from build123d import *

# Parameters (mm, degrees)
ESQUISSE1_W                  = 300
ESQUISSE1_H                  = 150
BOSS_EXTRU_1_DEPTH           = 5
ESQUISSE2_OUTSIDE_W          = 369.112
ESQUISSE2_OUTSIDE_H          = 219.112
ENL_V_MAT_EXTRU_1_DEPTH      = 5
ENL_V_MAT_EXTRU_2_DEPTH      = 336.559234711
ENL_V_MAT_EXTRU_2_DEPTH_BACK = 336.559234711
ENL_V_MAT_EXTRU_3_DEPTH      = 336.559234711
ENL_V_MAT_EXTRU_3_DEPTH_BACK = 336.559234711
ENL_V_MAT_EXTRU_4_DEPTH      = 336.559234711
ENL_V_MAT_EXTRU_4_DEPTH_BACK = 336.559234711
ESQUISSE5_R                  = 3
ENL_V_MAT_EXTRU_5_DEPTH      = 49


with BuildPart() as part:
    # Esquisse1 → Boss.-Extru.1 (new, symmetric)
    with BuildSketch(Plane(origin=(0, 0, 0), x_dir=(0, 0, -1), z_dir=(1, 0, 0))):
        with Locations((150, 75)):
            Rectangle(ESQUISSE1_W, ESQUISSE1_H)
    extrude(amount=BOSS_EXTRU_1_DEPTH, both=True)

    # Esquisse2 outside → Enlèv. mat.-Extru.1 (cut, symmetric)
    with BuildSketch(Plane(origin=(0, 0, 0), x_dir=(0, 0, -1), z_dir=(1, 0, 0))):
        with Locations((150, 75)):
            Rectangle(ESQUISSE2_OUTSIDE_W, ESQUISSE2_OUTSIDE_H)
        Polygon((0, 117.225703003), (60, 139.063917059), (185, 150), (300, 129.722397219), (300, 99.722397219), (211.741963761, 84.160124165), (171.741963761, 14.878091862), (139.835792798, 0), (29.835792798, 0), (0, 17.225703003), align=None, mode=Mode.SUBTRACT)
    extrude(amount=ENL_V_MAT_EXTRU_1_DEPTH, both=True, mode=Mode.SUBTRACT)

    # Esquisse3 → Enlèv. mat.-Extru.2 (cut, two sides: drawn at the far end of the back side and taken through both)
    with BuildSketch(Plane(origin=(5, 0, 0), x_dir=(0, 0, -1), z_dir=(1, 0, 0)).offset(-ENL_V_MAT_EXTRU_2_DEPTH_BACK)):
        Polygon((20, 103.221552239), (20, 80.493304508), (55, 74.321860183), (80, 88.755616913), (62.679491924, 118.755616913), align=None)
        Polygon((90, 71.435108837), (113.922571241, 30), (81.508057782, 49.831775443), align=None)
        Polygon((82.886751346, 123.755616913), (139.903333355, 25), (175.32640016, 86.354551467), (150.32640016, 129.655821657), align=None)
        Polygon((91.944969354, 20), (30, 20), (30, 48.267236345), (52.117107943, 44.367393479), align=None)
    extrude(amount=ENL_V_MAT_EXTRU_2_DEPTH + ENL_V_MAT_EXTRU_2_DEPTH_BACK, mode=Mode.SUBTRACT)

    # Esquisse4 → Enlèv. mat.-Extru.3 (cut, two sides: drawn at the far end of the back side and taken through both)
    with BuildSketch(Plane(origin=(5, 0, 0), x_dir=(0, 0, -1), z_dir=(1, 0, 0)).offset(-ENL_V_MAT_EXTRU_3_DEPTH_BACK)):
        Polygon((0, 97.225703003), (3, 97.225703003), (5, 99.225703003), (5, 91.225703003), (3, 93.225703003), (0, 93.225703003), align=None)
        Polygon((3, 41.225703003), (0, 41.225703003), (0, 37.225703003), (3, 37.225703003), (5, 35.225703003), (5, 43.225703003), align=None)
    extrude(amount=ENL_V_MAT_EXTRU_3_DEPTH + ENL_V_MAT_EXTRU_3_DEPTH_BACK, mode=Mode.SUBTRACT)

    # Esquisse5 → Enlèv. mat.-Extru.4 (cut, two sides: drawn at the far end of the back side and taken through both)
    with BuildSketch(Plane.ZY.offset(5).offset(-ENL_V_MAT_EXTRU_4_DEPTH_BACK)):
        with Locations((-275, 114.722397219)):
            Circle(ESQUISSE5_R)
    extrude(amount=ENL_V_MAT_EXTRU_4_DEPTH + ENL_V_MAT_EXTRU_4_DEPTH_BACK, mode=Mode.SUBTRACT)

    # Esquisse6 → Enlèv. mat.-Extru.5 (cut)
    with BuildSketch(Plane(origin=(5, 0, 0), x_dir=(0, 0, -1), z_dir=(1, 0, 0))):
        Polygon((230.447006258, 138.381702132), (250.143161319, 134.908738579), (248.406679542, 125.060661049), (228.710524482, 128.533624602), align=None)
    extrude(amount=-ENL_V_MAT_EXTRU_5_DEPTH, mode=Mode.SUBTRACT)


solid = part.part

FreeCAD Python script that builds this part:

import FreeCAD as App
import Part
import Sketcher

V = App.Vector
Q = App.Units.Quantity

doc = App.newDocument("Part")
body = doc.addObject("PartDesign::Body", "Body")

sketch1 = body.newObject("Sketcher::SketchObject", "Sketch")
sketch1.AttachmentSupport = (doc.getObject("YZ_Plane"), [""])
sketch1.MapMode = "FlatFace"
sketch1.addGeometry(Part.LineSegment(V(150, 0, 0), V(0, 0, 0)), False)
sketch1.addGeometry(Part.LineSegment(V(0, 0, 0), V(0, -300, 0)), False)
sketch1.addGeometry(Part.LineSegment(V(0, -300, 0), V(150, -300, 0)), False)
sketch1.addGeometry(Part.LineSegment(V(150, -300, 0), V(150, 0, 0)), False)
sketch1.addConstraint(Sketcher.Constraint("Coincident", 0, 2, 1, 1))
sketch1.addConstraint(Sketcher.Constraint("Coincident", 1, 2, 2, 1))
sketch1.addConstraint(Sketcher.Constraint("Coincident", 2, 2, 3, 1))
sketch1.addConstraint(Sketcher.Constraint("Coincident", 3, 2, 0, 1))
sketch1.addConstraint(Sketcher.Constraint("Horizontal", 0))
sketch1.addConstraint(Sketcher.Constraint("Vertical", 1))
sketch1.addConstraint(Sketcher.Constraint("Horizontal", 2))
sketch1.addConstraint(Sketcher.Constraint("Vertical", 3))
sketch1.addConstraint(Sketcher.Constraint("Coincident", 0, 2, -1, 1))
sketch1.addConstraint(Sketcher.Constraint("DistanceX", 0, 2, 0, 1, 150.0))
sketch1.addConstraint(Sketcher.Constraint("DistanceY", 1, 2, 1, 1, 300.0))
pad1 = body.newObject("PartDesign::Pad", "Pad")
pad1.Profile = sketch1
pad1.Length = 10
pad1.Midplane = True

sketch2 = body.newObject("Sketcher::SketchObject", "Sketch001")
sketch2.AttachmentSupport = (doc.getObject("YZ_Plane"), [""])
sketch2.MapMode = "FlatFace"
sketch2.addGeometry(Part.LineSegment(V(185, 35, 0), V(-35, 35, 0)), False)
sketch2.addGeometry(Part.LineSegment(V(-35, 35, 0), V(-35, -335, 0)), False)
sketch2.addGeometry(Part.LineSegment(V(-35, -335, 0), V(185, -335, 0)), False)
sketch2.addGeometry(Part.LineSegment(V(185, -335, 0), V(185, 35, 0)), False)
sketch2.addGeometry(Part.LineSegment(V(17, 0, 0), V(117, 0, 0)), False)
sketch2.addGeometry(Part.LineSegment(V(117, 0, 0), V(139, -60, 0)), False)
sketch2.addGeometry(Part.LineSegment(V(139, -60, 0), V(150, -185, 0)), False)
sketch2.addGeometry(Part.LineSegment(V(150, -185, 0), V(130, -300, 0)), False)
sketch2.addGeometry(Part.LineSegment(V(130, -300, 0), V(100, -300, 0)), False)
sketch2.addGeometry(Part.LineSegment(V(100, -300, 0), V(84, -212, 0)), False)
sketch2.addGeometry(Part.LineSegment(V(84, -212, 0), V(15, -172, 0)), False)
sketch2.addGeometry(Part.LineSegment(V(15, -172, 0), V(0, -140, 0)), False)
sketch2.addGeometry(Part.LineSegment(V(0, -140, 0), V(0, -30, 0)), False)
sketch2.addGeometry(Part.LineSegment(V(0, -30, 0), V(17, 0, 0)), False)
sketch2.addConstraint(Sketcher.Constraint("Coincident", 0, 2, 1, 1))
sketch2.addConstraint(Sketcher.Constraint("Coincident", 1, 2, 2, 1))
sketch2.addConstraint(Sketcher.Constraint("Coincident", 2, 2, 3, 1))
sketch2.addConstraint(Sketcher.Constraint("Coincident", 3, 2, 0, 1))
sketch2.addConstraint(Sketcher.Constraint("Coincident", 4, 2, 5, 1))
sketch2.addConstraint(Sketcher.Constraint("Coincident", 5, 2, 6, 1))
sketch2.addConstraint(Sketcher.Constraint("Coincident", 6, 2, 7, 1))
sketch2.addConstraint(Sketcher.Constraint("Coincident", 7, 2, 8, 1))
sketch2.addConstraint(Sketcher.Constraint("Coincident", 8, 2, 9, 1))
sketch2.addConstraint(Sketcher.Constraint("Coincident", 9, 2, 10, 1))
sketch2.addConstraint(Sketcher.Constraint("Coincident", 10, 2, 11, 1))
sketch2.addConstraint(Sketcher.Constraint("Coincident", 11, 2, 12, 1))
sketch2.addConstraint(Sketcher.Constraint("Coincident", 12, 2, 13, 1))
sketch2.addConstraint(Sketcher.Constraint("Coincident", 13, 2, 4, 1))
sketch2.addConstraint(Sketcher.Constraint("Horizontal", 0))
sketch2.addConstraint(Sketcher.Constraint("Vertical", 1))
sketch2.addConstraint(Sketcher.Constraint("Horizontal", 2))
sketch2.addConstraint(Sketcher.Constraint("Vertical", 3))
sketch2.addConstraint(Sketcher.Constraint("Horizontal", 4))
sketch2.addConstraint(Sketcher.Constraint("Horizontal", 8))
sketch2.addConstraint(Sketcher.Constraint("Vertical", 12))
sketch2.addConstraint(Sketcher.Constraint("PointOnObject", 4, 2, -1))
sketch2.addConstraint(Sketcher.Constraint("PointOnObject", 11, 2, -2))
sketch2.addConstraint(Sketcher.Constraint("Perpendicular", 10, 13))
sketch2.addConstraint(Sketcher.Constraint("DistanceX", 4, 1, 4, 2, 100.0))
sketch2.addConstraint(Sketcher.Constraint("DistanceX", 8, 2, 8, 1, 30.0))
sketch2.addConstraint(Sketcher.Constraint("DistanceY", 12, 1, 12, 2, 110.0))
sketch2.addConstraint(Sketcher.Constraint("Angle", 5, Q("-70 deg")))
sketch2.addConstraint(Sketcher.Constraint("Angle", 6, Q("-85 deg")))
sketch2.addConstraint(Sketcher.Constraint("Angle", 7, Q("-100 deg")))
sketch2.addConstraint(Sketcher.Constraint("Angle", 9, Q("100 deg")))
sketch2.addConstraint(Sketcher.Constraint("Angle", 10, Q("150 deg")))
sketch2.addConstraint(Sketcher.Constraint("Angle", 11, Q("115 deg")))
sketch2.addConstraint(Sketcher.Constraint("Distance", 10, 80.0))
sketch2.addConstraint(Sketcher.Constraint("DistanceY", 5, 2, -1, 1, 60.0))
sketch2.addConstraint(Sketcher.Constraint("DistanceX", -1, 1, 6, 2, 150.0))
sketch2.addConstraint(Sketcher.Constraint("DistanceY", 6, 2, -1, 1, 185.0))
sketch2.addConstraint(Sketcher.Constraint("DistanceY", 7, 2, -1, 1, 300.0))
sketch2.addConstraint(Sketcher.Constraint("DistanceX", 0, 2, 0, 1, 219.112))
sketch2.addConstraint(Sketcher.Constraint("DistanceY", 1, 2, 1, 1, 369.112))
sketch2.addConstraint(Sketcher.Constraint("DistanceX", 0, 2, -1, 1, 34.556))
sketch2.addConstraint(Sketcher.Constraint("DistanceY", -1, 1, 0, 2, 34.556))
pocket1 = body.newObject("PartDesign::Pocket", "Pocket")
pocket1.Profile = sketch2
pocket1.Length = 10
pocket1.Midplane = True

sketch3 = body.newObject("Sketcher::SketchObject", "Sketch002")
sketch3.AttachmentSupport = (doc.getObject("YZ_Plane"), [""])
sketch3.MapMode = "FlatFace"
sketch3.AttachmentOffset = App.Placement(V(0, 0, 5), App.Rotation())
sketch3.addGeometry(Part.LineSegment(V(103, -20, 0), V(80, -20, 0)), False)
sketch3.addGeometry(Part.LineSegment(V(80, -20, 0), V(74, -55, 0)), False)
sketch3.addGeometry(Part.LineSegment(V(74, -55, 0), V(89, -80, 0)), False)
sketch3.addGeometry(Part.LineSegment(V(89, -80, 0), V(119, -63, 0)), False)
sketch3.addGeometry(Part.LineSegment(V(119, -63, 0), V(103, -20, 0)), False)
sketch3.addGeometry(Part.LineSegment(V(30, -114, 0), V(71, -90, 0)), False)
sketch3.addGeometry(Part.LineSegment(V(71, -90, 0), V(50, -82, 0)), False)
sketch3.addGeometry(Part.LineSegment(V(50, -82, 0), V(30, -114, 0)), False)
sketch3.addGeometry(Part.LineSegment(V(124, -83, 0), V(25, -140, 0)), False)
sketch3.addGeometry(Part.LineSegment(V(25, -140, 0), V(86, -175, 0)), False)
sketch3.addGeometry(Part.LineSegment(V(86, -175, 0), V(130, -150, 0)), False)
sketch3.addGeometry(Part.LineSegment(V(130, -150, 0), V(124, -83, 0)), False)
sketch3.addGeometry(Part.LineSegment(V(20, -30, 0), V(20, -92, 0)), False)
sketch3.addGeometry(Part.LineSegment(V(20, -92, 0), V(44, -52, 0)), False)
sketch3.addGeometry(Part.LineSegment(V(44, -52, 0), V(48, -30, 0)), False)
sketch3.addGeometry(Part.LineSegment(V(48, -30, 0), V(20, -30, 0)), False)
sketch3.addConstraint(Sketcher.Constraint("Coincident", 0, 2, 1, 1))
sketch3.addConstraint(Sketcher.Constraint("Coincident", 1, 2, 2, 1))
sketch3.addConstraint(Sketcher.Constraint("Coincident", 2, 2, 3, 1))
sketch3.addConstraint(Sketcher.Constraint("Coincident", 3, 2, 4, 1))
sketch3.addConstraint(Sketcher.Constraint("Coincident", 4, 2, 0, 1))
sketch3.addConstraint(Sketcher.Constraint("Coincident", 5, 2, 6, 1))
sketch3.addConstraint(Sketcher.Constraint("Coincident", 6, 2, 7, 1))
sketch3.addConstraint(Sketcher.Constraint("Coincident", 7, 2, 5, 1))
sketch3.addConstraint(Sketcher.Constraint("Coincident", 8, 2, 9, 1))
sketch3.addConstraint(Sketcher.Constraint("Coincident", 9, 2, 10, 1))
sketch3.addConstraint(Sketcher.Constraint("Coincident", 10, 2, 11, 1))
sketch3.addConstraint(Sketcher.Constraint("Coincident", 11, 2, 8, 1))
sketch3.addConstraint(Sketcher.Constraint("Coincident", 12, 2, 13, 1))
sketch3.addConstraint(Sketcher.Constraint("Coincident", 13, 2, 14, 1))
sketch3.addConstraint(Sketcher.Constraint("Coincident", 14, 2, 15, 1))
sketch3.addConstraint(Sketcher.Constraint("Coincident", 15, 2, 12, 1))
sketch3.addConstraint(Sketcher.Constraint("Horizontal", 0))
sketch3.addConstraint(Sketcher.Constraint("Vertical", 12))
sketch3.addConstraint(Sketcher.Constraint("Horizontal", 15))
sketch3.addConstraint(Sketcher.Constraint("Perpendicular", 2, 3))
sketch3.addConstraint(Sketcher.Constraint("Parallel", 3, 5))
sketch3.addConstraint(Sketcher.Constraint("Parallel", 5, 8))
sketch3.addConstraint(Sketcher.Constraint("Parallel", 8, 10))
sketch3.addConstraint(Sketcher.Constraint("Parallel", 7, 13))
sketch3.addConstraint(Sketcher.Constraint("Parallel", 1, 14))
sketch3.addConstraint(Sketcher.Constraint("Angle", 1, Q("-100 deg")))
sketch3.addConstraint(Sketcher.Constraint("Angle", 2, Q("-60 deg")))
sketch3.addConstraint(Sketcher.Constraint("Angle", 4, Q("110 deg")))
sketch3.addConstraint(Sketcher.Constraint("Angle", 9, Q("-30 deg")))
sketch3.addConstraint(Sketcher.Constraint("Angle", 11, Q("95 deg")))
sketch3.addConstraint(Sketcher.Constraint("Distance", 7, 38.0))
sketch3.addConstraint(Sketcher.Constraint("Distance", 10, 50.0))
sketch3.addConstraint(Sketcher.Constraint("DistanceY", 0, 2, -1, 1, 20.0))
sketch3.addConstraint(Sketcher.Constraint("DistanceY", 1, 2, -1, 1, 55.0))
sketch3.addConstraint(Sketcher.Constraint("DistanceY", 2, 2, -1, 1, 80.0))
sketch3.addConstraint(Sketcher.Constraint("DistanceY", 5, 2, -1, 1, 90.0))
sketch3.addConstraint(Sketcher.Constraint("DistanceX", -1, 1, 7, 2, 30.0))
sketch3.addConstraint(Sketcher.Constraint("DistanceX", -1, 1, 8, 2, 25.0))
sketch3.addConstraint(Sketcher.Constraint("DistanceX", -1, 1, 12, 2, 20.0))
sketch3.addConstraint(Sketcher.Constraint("DistanceY", 14, 2, -1, 1, 30.0))
sketch3.addConstraint(Sketcher.Constraint("DistanceX", 2, 2, 3, 2, 30.0))
sketch3.addConstraint(Sketcher.Constraint("DistanceX", 3, 2, 11, 2, 5.0))
sketch3.addConstraint(Sketcher.Constraint("Distance", 14, 22.4583))
sketch3.addConstraint(Sketcher.Constraint("DistanceY", 12, 2, 12, 1, 61.944969))
sketch3.addConstraint(Sketcher.Constraint("DistanceY", 9, 2, -1, 1, 175.3264))
sketch3.addConstraint(Sketcher.Constraint("DistanceY", 7, 2, 12, 2, 21.977602))
sketch3.addConstraint(Sketcher.Constraint("DistanceX", 15, 2, 15, 1, 28.267236))
sketch3.addConstraint(Sketcher.Constraint("DistanceX", -1, 1, 1, 2, 74.32186))
pocket2 = body.newObject("PartDesign::Pocket", "Pocket001")
pocket2.Profile = sketch3
pocket2.Type = "ThroughAll"
pocket2.Midplane = True

sketch4 = body.newObject("Sketcher::SketchObject", "Sketch003")
sketch4.AttachmentSupport = (doc.getObject("YZ_Plane"), [""])
sketch4.MapMode = "FlatFace"
sketch4.AttachmentOffset = App.Placement(V(0, 0, 5), App.Rotation())
sketch4.addGeometry(Part.LineSegment(V(97.2, -3, 0), V(97.2, 0, 0)), False)
sketch4.addGeometry(Part.LineSegment(V(97.2, 0, 0), V(93.2, 0, 0)), False)
sketch4.addGeometry(Part.LineSegment(V(93.2, 0, 0), V(93.2, -3, 0)), False)
sketch4.addGeometry(Part.LineSegment(V(93.2, -3, 0), V(91.2, -5, 0)), False)
sketch4.addGeometry(Part.LineSegment(V(91.2, -5, 0), V(99.2, -5, 0)), False)
sketch4.addGeometry(Part.LineSegment(V(99.2, -5, 0), V(97.2, -3, 0)), False)
sketch4.addGeometry(Part.LineSegment(V(41.2, -3, 0), V(41.2, 0, 0)), False)
sketch4.addGeometry(Part.LineSegment(V(41.2, 0, 0), V(37.2, 0, 0)), False)
sketch4.addGeometry(Part.LineSegment(V(37.2, 0, 0), V(37.2, -3, 0)), False)
sketch4.addGeometry(Part.LineSegment(V(37.2, -3, 0), V(35.2, -5, 0)), False)
sketch4.addGeometry(Part.LineSegment(V(35.2, -5, 0), V(43.2, -5, 0)), False)
sketch4.addGeometry(Part.LineSegment(V(43.2, -5, 0), V(41.2, -3, 0)), False)
sketch4.addConstraint(Sketcher.Constraint("Coincident", 0, 2, 1, 1))
sketch4.addConstraint(Sketcher.Constraint("Coincident", 1, 2, 2, 1))
sketch4.addConstraint(Sketcher.Constraint("Coincident", 2, 2, 3, 1))
sketch4.addConstraint(Sketcher.Constraint("Coincident", 3, 2, 4, 1))
sketch4.addConstraint(Sketcher.Constraint("Coincident", 4, 2, 5, 1))
sketch4.addConstraint(Sketcher.Constraint("Coincident", 5, 2, 0, 1))
sketch4.addConstraint(Sketcher.Constraint("Coincident", 6, 2, 7, 1))
sketch4.addConstraint(Sketcher.Constraint("Coincident", 7, 2, 8, 1))
sketch4.addConstraint(Sketcher.Constraint("Coincident", 8, 2, 9, 1))
sketch4.addConstraint(Sketcher.Constraint("Coincident", 9, 2, 10, 1))
sketch4.addConstraint(Sketcher.Constraint("Coincident", 10, 2, 11, 1))
sketch4.addConstraint(Sketcher.Constraint("Coincident", 11, 2, 6, 1))
sketch4.addConstraint(Sketcher.Constraint("Vertical", 0))
sketch4.addConstraint(Sketcher.Constraint("Horizontal", 1))
sketch4.addConstraint(Sketcher.Constraint("Vertical", 2))
sketch4.addConstraint(Sketcher.Constraint("Horizontal", 4))
sketch4.addConstraint(Sketcher.Constraint("Vertical", 6))
sketch4.addConstraint(Sketcher.Constraint("Horizontal", 7))
sketch4.addConstraint(Sketcher.Constraint("Vertical", 8))
sketch4.addConstraint(Sketcher.Constraint("Horizontal", 10))
sketch4.addConstraint(Sketcher.Constraint("PointOnObject", 0, 2, -1))
sketch4.addConstraint(Sketcher.Constraint("PointOnObject", 6, 2, -1))
sketch4.addConstraint(Sketcher.Constraint("Perpendicular", 3, 5))
sketch4.addConstraint(Sketcher.Constraint("Perpendicular", 5, 9))
sketch4.addConstraint(Sketcher.Constraint("Perpendicular", 9, 11))
sketch4.addConstraint(Sketcher.Constraint("Horizontal", 2, 2, 5, 2))
sketch4.addConstraint(Sketcher.Constraint("Horizontal", 5, 2, 8, 2))
sketch4.addConstraint(Sketcher.Constraint("Horizontal", 4, 2, 9, 2))
sketch4.addConstraint(Sketcher.Constraint("Horizontal", 8, 2, 11, 2))
sketch4.addConstraint(Sketcher.Constraint("Equal", 1, 7))
sketch4.addConstraint(Sketcher.Constraint("Equal", 3, 5))
sketch4.addConstraint(Sketcher.Constraint("DistanceX", 1, 2, 1, 1, 4.0))
sketch4.addConstraint(Sketcher.Constraint("DistanceX", 4, 1, 4, 2, 8.0))
sketch4.addConstraint(Sketcher.Constraint("DistanceY", 0, 1, 0, 2, 3.0))
sketch4.addConstraint(Sketcher.Constraint("DistanceX", 6, 2, 3, 2, 50.0))
sketch4.addConstraint(Sketcher.Constraint("DistanceX", -1, 1, 0, 2, 97.225703))
pocket3 = body.newObject("PartDesign::Pocket", "Pocket002")
pocket3.Profile = sketch4
pocket3.Type = "ThroughAll"
pocket3.Midplane = True

sketch5 = body.newObject("Sketcher::SketchObject", "Sketch004")
sketch5.AttachmentSupport = (doc.getObject("YZ_Plane"), [""])
sketch5.MapMode = "FlatFace"
sketch5.AttachmentOffset = App.Placement(V(0, 0, -5), App.Rotation())
sketch5.addGeometry(Part.Circle(V(114.7, -275, 0), V(0, 0, 1), 3), False)
sketch5.addConstraint(Sketcher.Constraint("Diameter", 0, 6.0))
sketch5.addConstraint(Sketcher.Constraint("DistanceY", 0, 3, -1, 1, 275.0))
sketch5.addConstraint(Sketcher.Constraint("DistanceX", -1, 1, 0, 3, 114.722397))
pocket4 = body.newObject("PartDesign::Pocket", "Pocket003")
pocket4.Profile = sketch5
pocket4.Type = "ThroughAll"
pocket4.Midplane = True

sketch6 = body.newObject("Sketcher::SketchObject", "Sketch005")
sketch6.AttachmentSupport = (doc.getObject("YZ_Plane"), [""])
sketch6.MapMode = "FlatFace"
sketch6.AttachmentOffset = App.Placement(V(0, 0, 5), App.Rotation())
sketch6.addGeometry(Part.LineSegment(V(135, -250, 0), V(138, -230, 0)), False)
sketch6.addGeometry(Part.LineSegment(V(138, -230, 0), V(129, -229, 0)), False)
sketch6.addGeometry(Part.LineSegment(V(129, -229, 0), V(125, -248, 0)), False)
sketch6.addGeometry(Part.LineSegment(V(125, -248, 0), V(135, -250, 0)), False)
sketch6.addConstraint(Sketcher.Constraint("Coincident", 0, 2, 1, 1))
sketch6.addConstraint(Sketcher.Constraint("Coincident", 1, 2, 2, 1))
sketch6.addConstraint(Sketcher.Constraint("Coincident", 2, 2, 3, 1))
sketch6.addConstraint(Sketcher.Constraint("Coincident", 3, 2, 0, 1))
sketch6.addConstraint(Sketcher.Constraint("Perpendicular", 0, 1))
sketch6.addConstraint(Sketcher.Constraint("Perpendicular", 1, 2))
sketch6.addConstraint(Sketcher.Constraint("Perpendicular", 2, 3))
sketch6.addConstraint(Sketcher.Constraint("Angle", 0, Q("80 deg")))
sketch6.addConstraint(Sketcher.Constraint("Distance", 0, 20.0))
sketch6.addConstraint(Sketcher.Constraint("Distance", 1, 10.0))
sketch6.addConstraint(Sketcher.Constraint("DistanceX", -1, 1, 2, 2, 125.060661))
sketch6.addConstraint(Sketcher.Constraint("DistanceY", 2, 2, -1, 1, 248.40668))
pocket5 = body.newObject("PartDesign::Pocket", "Pocket004")
pocket5.Profile = sketch6
pocket5.Length = 49

doc.recompute()
